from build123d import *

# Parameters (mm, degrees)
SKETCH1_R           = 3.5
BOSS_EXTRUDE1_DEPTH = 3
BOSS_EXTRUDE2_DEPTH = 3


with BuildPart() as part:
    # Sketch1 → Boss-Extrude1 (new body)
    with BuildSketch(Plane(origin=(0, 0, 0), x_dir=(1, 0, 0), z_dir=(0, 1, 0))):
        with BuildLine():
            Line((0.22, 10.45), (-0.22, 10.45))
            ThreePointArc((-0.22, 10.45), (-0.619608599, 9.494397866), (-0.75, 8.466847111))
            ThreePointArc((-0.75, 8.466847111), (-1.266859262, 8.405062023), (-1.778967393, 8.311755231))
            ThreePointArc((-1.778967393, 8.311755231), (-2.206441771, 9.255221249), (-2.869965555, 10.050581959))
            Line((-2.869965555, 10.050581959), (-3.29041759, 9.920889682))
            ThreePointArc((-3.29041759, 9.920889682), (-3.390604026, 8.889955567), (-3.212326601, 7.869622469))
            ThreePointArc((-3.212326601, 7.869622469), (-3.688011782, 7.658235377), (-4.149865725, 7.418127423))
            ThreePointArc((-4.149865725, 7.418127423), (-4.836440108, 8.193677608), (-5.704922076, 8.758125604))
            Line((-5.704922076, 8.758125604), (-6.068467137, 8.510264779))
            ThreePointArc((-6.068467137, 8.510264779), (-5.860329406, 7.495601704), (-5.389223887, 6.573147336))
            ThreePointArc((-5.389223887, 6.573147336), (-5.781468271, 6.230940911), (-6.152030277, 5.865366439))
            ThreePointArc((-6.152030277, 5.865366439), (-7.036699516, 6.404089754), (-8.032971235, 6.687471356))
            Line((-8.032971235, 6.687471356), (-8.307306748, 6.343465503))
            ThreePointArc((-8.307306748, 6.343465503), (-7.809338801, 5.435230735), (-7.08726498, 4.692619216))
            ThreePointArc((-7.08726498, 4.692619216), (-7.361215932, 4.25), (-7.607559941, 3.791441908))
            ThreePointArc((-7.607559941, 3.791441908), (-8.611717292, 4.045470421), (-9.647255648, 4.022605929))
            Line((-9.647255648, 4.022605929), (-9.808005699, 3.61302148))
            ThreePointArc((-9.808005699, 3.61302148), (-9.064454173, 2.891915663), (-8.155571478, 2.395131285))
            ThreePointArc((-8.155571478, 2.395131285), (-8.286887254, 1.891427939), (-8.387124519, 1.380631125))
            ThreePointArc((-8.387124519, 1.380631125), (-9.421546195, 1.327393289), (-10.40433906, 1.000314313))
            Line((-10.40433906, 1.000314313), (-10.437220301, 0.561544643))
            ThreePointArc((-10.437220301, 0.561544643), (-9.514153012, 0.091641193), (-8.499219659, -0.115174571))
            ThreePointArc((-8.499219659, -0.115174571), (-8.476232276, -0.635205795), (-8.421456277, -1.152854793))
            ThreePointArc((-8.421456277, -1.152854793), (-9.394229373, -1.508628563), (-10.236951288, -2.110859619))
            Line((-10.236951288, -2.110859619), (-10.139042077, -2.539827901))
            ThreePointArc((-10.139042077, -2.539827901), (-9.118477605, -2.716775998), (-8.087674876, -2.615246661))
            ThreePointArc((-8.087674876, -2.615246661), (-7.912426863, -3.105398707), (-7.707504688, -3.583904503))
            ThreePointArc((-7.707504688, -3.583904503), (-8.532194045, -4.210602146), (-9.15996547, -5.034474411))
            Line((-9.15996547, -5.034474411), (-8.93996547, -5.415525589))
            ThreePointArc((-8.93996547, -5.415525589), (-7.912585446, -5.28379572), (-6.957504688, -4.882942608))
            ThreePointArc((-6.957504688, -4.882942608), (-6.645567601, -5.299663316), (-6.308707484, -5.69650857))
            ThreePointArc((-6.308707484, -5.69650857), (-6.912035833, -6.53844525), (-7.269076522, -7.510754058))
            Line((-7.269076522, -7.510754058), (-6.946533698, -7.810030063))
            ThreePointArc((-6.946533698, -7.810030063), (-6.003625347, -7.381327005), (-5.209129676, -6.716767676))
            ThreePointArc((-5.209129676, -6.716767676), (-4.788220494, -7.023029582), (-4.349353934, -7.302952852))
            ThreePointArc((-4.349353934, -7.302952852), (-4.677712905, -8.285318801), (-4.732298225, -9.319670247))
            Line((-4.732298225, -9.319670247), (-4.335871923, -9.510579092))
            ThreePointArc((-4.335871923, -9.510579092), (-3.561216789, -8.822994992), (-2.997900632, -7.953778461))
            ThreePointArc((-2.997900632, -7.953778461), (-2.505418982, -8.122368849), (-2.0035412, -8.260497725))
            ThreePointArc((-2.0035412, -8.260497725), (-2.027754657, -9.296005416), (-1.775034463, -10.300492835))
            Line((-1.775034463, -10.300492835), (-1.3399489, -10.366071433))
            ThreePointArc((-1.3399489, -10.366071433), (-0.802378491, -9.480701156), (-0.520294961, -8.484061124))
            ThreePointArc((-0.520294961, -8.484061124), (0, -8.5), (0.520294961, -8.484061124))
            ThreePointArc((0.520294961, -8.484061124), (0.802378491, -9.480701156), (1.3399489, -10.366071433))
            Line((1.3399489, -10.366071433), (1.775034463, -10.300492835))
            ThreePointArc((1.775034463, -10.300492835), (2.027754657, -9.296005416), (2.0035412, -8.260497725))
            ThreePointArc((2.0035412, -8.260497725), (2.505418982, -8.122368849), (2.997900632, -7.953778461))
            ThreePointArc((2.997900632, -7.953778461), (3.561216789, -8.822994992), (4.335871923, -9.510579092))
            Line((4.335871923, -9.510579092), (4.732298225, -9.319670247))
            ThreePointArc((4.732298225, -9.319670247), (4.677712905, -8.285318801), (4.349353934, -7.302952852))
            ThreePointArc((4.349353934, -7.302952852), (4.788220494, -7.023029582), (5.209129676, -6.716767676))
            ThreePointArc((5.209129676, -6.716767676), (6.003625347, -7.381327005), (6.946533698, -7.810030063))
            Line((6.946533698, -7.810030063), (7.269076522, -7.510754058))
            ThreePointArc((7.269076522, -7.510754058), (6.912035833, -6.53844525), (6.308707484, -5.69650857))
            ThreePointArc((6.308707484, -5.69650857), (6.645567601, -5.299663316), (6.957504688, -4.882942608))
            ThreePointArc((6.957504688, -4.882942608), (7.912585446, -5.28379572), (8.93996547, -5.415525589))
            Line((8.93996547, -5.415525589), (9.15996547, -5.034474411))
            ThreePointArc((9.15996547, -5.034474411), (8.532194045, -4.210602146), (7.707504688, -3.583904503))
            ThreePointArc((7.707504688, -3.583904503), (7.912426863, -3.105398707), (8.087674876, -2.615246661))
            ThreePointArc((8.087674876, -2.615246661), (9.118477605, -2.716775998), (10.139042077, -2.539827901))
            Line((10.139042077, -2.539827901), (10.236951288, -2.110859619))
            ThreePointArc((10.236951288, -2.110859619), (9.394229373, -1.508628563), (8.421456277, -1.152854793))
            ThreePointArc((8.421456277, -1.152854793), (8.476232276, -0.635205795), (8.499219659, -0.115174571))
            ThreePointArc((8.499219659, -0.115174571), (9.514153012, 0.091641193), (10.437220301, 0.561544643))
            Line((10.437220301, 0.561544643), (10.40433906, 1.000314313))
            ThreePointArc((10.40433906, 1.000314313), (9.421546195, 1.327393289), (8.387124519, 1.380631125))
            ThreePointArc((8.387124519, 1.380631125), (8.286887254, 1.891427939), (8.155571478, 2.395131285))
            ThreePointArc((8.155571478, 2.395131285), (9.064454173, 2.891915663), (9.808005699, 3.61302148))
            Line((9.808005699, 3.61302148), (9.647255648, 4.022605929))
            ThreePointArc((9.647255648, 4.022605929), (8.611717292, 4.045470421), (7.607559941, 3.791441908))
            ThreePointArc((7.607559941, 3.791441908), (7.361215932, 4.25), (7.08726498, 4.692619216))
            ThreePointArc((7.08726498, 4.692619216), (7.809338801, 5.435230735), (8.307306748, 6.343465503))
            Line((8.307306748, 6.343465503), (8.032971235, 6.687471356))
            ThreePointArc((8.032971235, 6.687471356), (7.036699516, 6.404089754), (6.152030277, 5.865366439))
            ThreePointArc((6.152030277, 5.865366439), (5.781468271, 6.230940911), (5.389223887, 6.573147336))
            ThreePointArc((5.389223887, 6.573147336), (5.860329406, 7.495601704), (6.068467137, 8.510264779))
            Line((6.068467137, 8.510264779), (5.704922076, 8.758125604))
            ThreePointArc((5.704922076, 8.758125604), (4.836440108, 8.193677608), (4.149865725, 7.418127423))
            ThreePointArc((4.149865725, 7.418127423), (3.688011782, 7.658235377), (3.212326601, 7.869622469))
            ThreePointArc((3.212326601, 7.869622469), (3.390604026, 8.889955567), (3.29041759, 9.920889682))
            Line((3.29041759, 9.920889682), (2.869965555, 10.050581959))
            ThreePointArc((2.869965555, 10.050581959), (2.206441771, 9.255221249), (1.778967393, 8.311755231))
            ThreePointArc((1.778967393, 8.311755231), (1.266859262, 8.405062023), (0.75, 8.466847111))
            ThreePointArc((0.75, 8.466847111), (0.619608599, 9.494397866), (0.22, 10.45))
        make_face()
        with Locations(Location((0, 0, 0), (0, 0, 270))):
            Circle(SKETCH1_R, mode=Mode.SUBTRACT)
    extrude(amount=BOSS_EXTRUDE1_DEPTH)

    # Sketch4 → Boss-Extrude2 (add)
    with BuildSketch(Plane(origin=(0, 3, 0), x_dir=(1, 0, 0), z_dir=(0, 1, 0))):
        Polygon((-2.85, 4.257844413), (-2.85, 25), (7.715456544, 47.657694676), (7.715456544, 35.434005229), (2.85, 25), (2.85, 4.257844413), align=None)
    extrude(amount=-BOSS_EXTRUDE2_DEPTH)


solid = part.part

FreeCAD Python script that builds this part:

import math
import FreeCAD as App
import Part
import Sketcher
from FreeCAD import Vector
Q = App.Units.Quantity

doc = App.newDocument("Part")
body = doc.addObject("PartDesign::Body", "Body")

sketch1 = body.newObject("Sketcher::SketchObject", "Sketch")
sketch1.AttachmentSupport = (doc.getObject("XZ_Plane"), [""])
sketch1.MapMode = "FlatFace"
sketch1.addGeometry([
    Part.LineSegment(Vector(0.22, -10.45, 0), Vector(-0.22, -10.45, 0)),
    Part.ArcOfCircle(Part.Circle(Vector(3.099854, -8.500367, 0), Vector(0, 0, 1), 3.85), math.radians(179.50115), math.radians(210.424211)),
    Part.ArcOfCircle(Part.Circle(Vector(0, 0, 0), Vector(0, 0, 1), 8.5), math.radians(-102.080764), math.radians(-95.062093)),
    Part.ArcOfCircle(Part.Circle(Vector(-5.467663, -7.209022, 0), Vector(0, 0, 1), 3.85), math.radians(-47.567068), math.radians(-16.644007)),
    Part.LineSegment(Vector(-2.869966, -10.050582, 0), Vector(-3.290418, -9.92089, 0)),
    Part.ArcOfCircle(Part.Circle(Vector(0.456609, -9.036418, 0), Vector(0, 0, 1), 3.85), math.radians(162.358293), math.radians(193.281354)),
    Part.ArcOfCircle(Part.Circle(Vector(0, 0, 0), Vector(0, 0, 1), 8.5), math.radians(-119.223621), math.radians(-112.20495)),
    Part.ArcOfCircle(Part.Circle(Vector(-7.349647, -5.277123, 0), Vector(0, 0, 1), 3.85), math.radians(-64.709925), math.radians(-33.786865)),
    Part.LineSegment(Vector(-5.704922, -8.758126, 0), Vector(-6.068467, -8.510265, 0)),
    Part.ArcOfCircle(Part.Circle(Vector(-2.227208, -8.769543, 0), Vector(0, 0, 1), 3.85), math.radians(145.215436), math.radians(176.138497)),
    Part.ArcOfCircle(Part.Circle(Vector(0, 0, 0), Vector(0, 0, 1), 8.5), math.radians(-136.366479), math.radians(-129.347807)),
    Part.ArcOfCircle(Part.Circle(Vector(-8.578582, -2.876329, 0), Vector(0, 0, 1), 3.85), math.radians(-81.852783), math.radians(-50.929722)),
    Part.LineSegment(Vector(-8.032971, -6.687471, 0), Vector(-8.307307, -6.343466, 0)),
    Part.ArcOfCircle(Part.Circle(Vector(-4.713127, -7.723456, 0), Vector(0, 0, 1), 3.85), math.radians(128.072579), math.radians(158.99564)),
    Part.ArcOfCircle(Part.Circle(Vector(0, 0, 0), Vector(0, 0, 1), 8.5), math.radians(-153.509336), math.radians(-146.490664)),
    Part.ArcOfCircle(Part.Circle(Vector(-9.045272, -0.21996, 0), Vector(0, 0, 1), 3.85), math.radians(-98.99564), math.radians(-68.072579)),
    Part.LineSegment(Vector(-9.647256, -4.022606, 0), Vector(-9.808006, -3.613021, 0)),
    Part.ArcOfCircle(Part.Circle(Vector(-6.780265, -5.991106, 0), Vector(0, 0, 1), 3.85), math.radians(110.929722), math.radians(141.852783)),
    Part.ArcOfCircle(Part.Circle(Vector(0, 0, 0), Vector(0, 0, 1), 8.5), math.radians(-170.652193), math.radians(-163.633521)),
    Part.ArcOfCircle(Part.Circle(Vector(-8.708251, 2.455953, 0), Vector(0, 0, 1), 3.85), math.radians(-116.138497), math.radians(-85.215436)),
    Part.LineSegment(Vector(-10.404339, -1.000314, 0), Vector(-10.43722, -0.561545, 0)),
    Part.ArcOfCircle(Part.Circle(Vector(-8.244946, -3.726419, 0), Vector(0, 0, 1), 3.85), math.radians(93.786865), math.radians(124.709925)),
    Part.ArcOfCircle(Part.Circle(Vector(0, 0, 0), Vector(0, 0, 1), 8.5), math.radians(172.20495), math.radians(179.223621)),
    Part.ArcOfCircle(Part.Circle(Vector(-7.597463, 4.913644, 0), Vector(0, 0, 1), 3.85), math.radians(-133.281354), math.radians(-102.358293)),
    Part.LineSegment(Vector(-10.236951, 2.11086, 0), Vector(-10.139042, 2.539828, 0)),
    Part.ArcOfCircle(Part.Circle(Vector(-8.977027, -1.130625, 0), Vector(0, 0, 1), 3.85), math.radians(76.644007), math.radians(107.567068)),
    Part.ArcOfCircle(Part.Circle(Vector(0, 0, 0), Vector(0, 0, 1), 8.5), math.radians(155.062093), math.radians(162.080764)),
    Part.ArcOfCircle(Part.Circle(Vector(-5.811607, 6.934736, 0), Vector(0, 0, 1), 3.85), math.radians(-150.424211), math.radians(-119.50115)),
    Part.LineSegment(Vector(-9.159965, 5.034474, 0), Vector(-8.939965, 5.415526, 0)),
    Part.ArcOfCircle(Part.Circle(Vector(-8.911461, 1.565631, 0), Vector(0, 0, 1), 3.85), math.radians(59.50115), math.radians(90.424211)),
    Part.ArcOfCircle(Part.Circle(Vector(0, 0, 0), Vector(0, 0, 1), 8.5), math.radians(137.919236), math.radians(144.937907)),
    Part.ArcOfCircle(Part.Circle(Vector(-3.509364, 8.339646, 0), Vector(0, 0, 1), 3.85), math.radians(-167.567068), math.radians(-136.644007)),
    Part.LineSegment(Vector(-7.269077, 7.510754, 0), Vector(-6.946534, 7.81003, 0)),
    Part.ArcOfCircle(Part.Circle(Vector(-8.054072, 4.122774, 0), Vector(0, 0, 1), 3.85), math.radians(42.358293), math.radians(73.281354)),
    Part.ArcOfCircle(Part.Circle(Vector(0, 0, 0), Vector(0, 0, 1), 8.5), math.radians(120.776379), math.radians(127.79505)),
    Part.ArcOfCircle(Part.Circle(Vector(-0.895299, 9.003542, 0), Vector(0, 0, 1), 3.85), math.radians(175.290075), math.radians(206.213135)),
    Part.LineSegment(Vector(-4.732298, 9.31967, 0), Vector(-4.335872, 9.510579, 0)),
    Part.ArcOfCircle(Part.Circle(Vector(-6.481043, 6.31359, 0), Vector(0, 0, 1), 3.85), math.radians(25.215436), math.radians(56.138497)),
    Part.ArcOfCircle(Part.Circle(Vector(0, 0, 0), Vector(0, 0, 1), 8.5), math.radians(103.633522), math.radians(110.652193)),
    Part.ArcOfCircle(Part.Circle(Vector(1.798317, 8.867434, 0), Vector(0, 0, 1), 3.85), math.radians(158.147217), math.radians(189.070278)),
    Part.LineSegment(Vector(-1.775034, 10.300493, 0), Vector(-1.339949, 10.366071, 0)),
    Part.ArcOfCircle(Part.Circle(Vector(-4.332145, 7.943416, 0), Vector(0, 0, 1), 3.85), math.radians(8.072579), math.radians(38.99564)),
    Part.ArcOfCircle(Part.Circle(Vector(0, 0, 0), Vector(0, 0, 1), 8.5), math.radians(86.490664), math.radians(93.509336)),
    Part.ArcOfCircle(Part.Circle(Vector(4.332145, 7.943416, 0), Vector(0, 0, 1), 3.85), math.radians(141.00436), math.radians(171.927421)),
    Part.LineSegment(Vector(1.339949, 10.366071, 0), Vector(1.775034, 10.300493, 0)),
    Part.ArcOfCircle(Part.Circle(Vector(-1.798317, 8.867434, 0), Vector(0, 0, 1), 3.85), math.radians(-9.070278), math.radians(21.852783)),
    Part.ArcOfCircle(Part.Circle(Vector(0, 0, 0), Vector(0, 0, 1), 8.5), math.radians(69.347807), math.radians(76.366478)),
    Part.ArcOfCircle(Part.Circle(Vector(6.481043, 6.31359, 0), Vector(0, 0, 1), 3.85), math.radians(123.861503), math.radians(154.784564)),
    Part.LineSegment(Vector(4.335872, 9.510579, 0), Vector(4.732298, 9.31967, 0)),
    Part.ArcOfCircle(Part.Circle(Vector(0.895299, 9.003542, 0), Vector(0, 0, 1), 3.85), math.radians(-26.213135), math.radians(4.709925)),
    Part.ArcOfCircle(Part.Circle(Vector(0, 0, 0), Vector(0, 0, 1), 8.5), math.radians(52.20495), math.radians(59.223621)),
    Part.ArcOfCircle(Part.Circle(Vector(8.054072, 4.122774, 0), Vector(0, 0, 1), 3.85), math.radians(106.718646), math.radians(137.641707)),
    Part.LineSegment(Vector(6.946534, 7.81003, 0), Vector(7.269077, 7.510754, 0)),
    Part.ArcOfCircle(Part.Circle(Vector(3.509364, 8.339646, 0), Vector(0, 0, 1), 3.85), math.radians(-43.355993), math.radians(-12.432932)),
    Part.ArcOfCircle(Part.Circle(Vector(0, 0, 0), Vector(0, 0, 1), 8.5), math.radians(35.062093), math.radians(42.080764)),
    Part.ArcOfCircle(Part.Circle(Vector(8.911461, 1.565631, 0), Vector(0, 0, 1), 3.85), math.radians(89.575789), math.radians(120.49885)),
    Part.LineSegment(Vector(8.939965, 5.415526, 0), Vector(9.159965, 5.034474, 0)),
    Part.ArcOfCircle(Part.Circle(Vector(5.811607, 6.934736, 0), Vector(0, 0, 1), 3.85), math.radians(-60.49885), math.radians(-29.575789)),
    Part.ArcOfCircle(Part.Circle(Vector(0, 0, 0), Vector(0, 0, 1), 8.5), math.radians(17.919236), math.radians(24.937907)),
    Part.ArcOfCircle(Part.Circle(Vector(8.977027, -1.130625, 0), Vector(0, 0, 1), 3.85), math.radians(72.432932), math.radians(103.355993)),
    Part.LineSegment(Vector(10.139042, 2.539828, 0), Vector(10.236951, 2.11086, 0)),
    Part.ArcOfCircle(Part.Circle(Vector(7.597463, 4.913644, 0), Vector(0, 0, 1), 3.85), math.radians(-77.641707), math.radians(-46.718646)),
    Part.ArcOfCircle(Part.Circle(Vector(0, 0, 0), Vector(0, 0, 1), 8.5), math.radians(0.776379), math.radians(7.79505)),
    Part.ArcOfCircle(Part.Circle(Vector(8.244946, -3.726419, 0), Vector(0, 0, 1), 3.85), math.radians(55.290075), math.radians(86.213135)),
    Part.LineSegment(Vector(10.43722, -0.561545, 0), Vector(10.404339, -1.000314, 0)),
    Part.ArcOfCircle(Part.Circle(Vector(8.708251, 2.455953, 0), Vector(0, 0, 1), 3.85), math.radians(-94.784564), math.radians(-63.861503)),
    Part.ArcOfCircle(Part.Circle(Vector(0, 0, 0), Vector(0, 0, 1), 8.5), math.radians(-16.366479), math.radians(-9.347807)),
    Part.ArcOfCircle(Part.Circle(Vector(6.780265, -5.991106, 0), Vector(0, 0, 1), 3.85), math.radians(38.147217), math.radians(69.070278)),
    Part.LineSegment(Vector(9.808006, -3.613021, 0), Vector(9.647256, -4.022606, 0)),
    Part.ArcOfCircle(Part.Circle(Vector(9.045272, -0.21996, 0), Vector(0, 0, 1), 3.85), math.radians(-111.927421), math.radians(-81.00436)),
    Part.ArcOfCircle(Part.Circle(Vector(0, 0, 0), Vector(0, 0, 1), 8.5), math.radians(-33.509336), math.radians(-26.490664)),
    Part.ArcOfCircle(Part.Circle(Vector(4.713127, -7.723456, 0), Vector(0, 0, 1), 3.85), math.radians(21.00436), math.radians(51.927421)),
    Part.LineSegment(Vector(8.307307, -6.343466, 0), Vector(8.032971, -6.687471, 0)),
    Part.ArcOfCircle(Part.Circle(Vector(8.578582, -2.876329, 0), Vector(0, 0, 1), 3.85), math.radians(-129.070278), math.radians(-98.147217)),
    Part.ArcOfCircle(Part.Circle(Vector(0, 0, 0), Vector(0, 0, 1), 8.5), math.radians(-50.652193), math.radians(-43.633521)),
    Part.ArcOfCircle(Part.Circle(Vector(2.227208, -8.769543, 0), Vector(0, 0, 1), 3.85), math.radians(3.861503), math.radians(34.784564)),
    Part.LineSegment(Vector(6.068467, -8.510265, 0), Vector(5.704922, -8.758126, 0)),
    Part.ArcOfCircle(Part.Circle(Vector(7.349647, -5.277123, 0), Vector(0, 0, 1), 3.85), math.radians(-146.213135), math.radians(-115.290075)),
    Part.ArcOfCircle(Part.Circle(Vector(0, 0, 0), Vector(0, 0, 1), 8.5), math.radians(-67.79505), math.radians(-60.776379)),
    Part.ArcOfCircle(Part.Circle(Vector(-0.456609, -9.036418, 0), Vector(0, 0, 1), 3.85), math.radians(-13.281354), math.radians(17.641707)),
    Part.LineSegment(Vector(3.290418, -9.92089, 0), Vector(2.869966, -10.050582, 0)),
    Part.ArcOfCircle(Part.Circle(Vector(5.467663, -7.209022, 0), Vector(0, 0, 1), 3.85), math.radians(-163.355993), math.radians(-132.432932)),
    Part.ArcOfCircle(Part.Circle(Vector(0, 0, 0), Vector(0, 0, 1), 8.5), math.radians(-84.937907), math.radians(-77.919236)),
    Part.ArcOfCircle(Part.Circle(Vector(-3.099854, -8.500367, 0), Vector(0, 0, 1), 3.85), math.radians(-30.424211), math.radians(0.49885)),
    Part.Circle(Vector(0, 0, 0), Vector(0, 0, 1), 3.5),
], False)
sketch1.addConstraint([
    Sketcher.Constraint("Coincident", 0, 2, 1, 2),
    Sketcher.Constraint("Coincident", 1, 1, 2, 2),
    Sketcher.Constraint("Coincident", 2, 1, 3, 2),
    Sketcher.Constraint("Coincident", 3, 1, 4, 1),
    Sketcher.Constraint("Coincident", 4, 2, 5, 2),
    Sketcher.Constraint("Coincident", 5, 1, 6, 2),
    Sketcher.Constraint("Coincident", 6, 1, 7, 2),
    Sketcher.Constraint("Coincident", 7, 1, 8, 1),
    Sketcher.Constraint("Coincident", 8, 2, 9, 2),
    Sketcher.Constraint("Coincident", 9, 1, 10, 2),
    Sketcher.Constraint("Coincident", 10, 1, 11, 2),
    Sketcher.Constraint("Coincident", 11, 1, 12, 1),
    Sketcher.Constraint("Coincident", 12, 2, 13, 2),
    Sketcher.Constraint("Coincident", 13, 1, 14, 2),
    Sketcher.Constraint("Coincident", 14, 1, 15, 2),
    Sketcher.Constraint("Coincident", 15, 1, 16, 1),
    Sketcher.Constraint("Coincident", 16, 2, 17, 2),
    Sketcher.Constraint("Coincident", 17, 1, 18, 2),
    Sketcher.Constraint("Coincident", 18, 1, 19, 2),
    Sketcher.Constraint("Coincident", 19, 1, 20, 1),
    Sketcher.Constraint("Coincident", 20, 2, 21, 2),
    Sketcher.Constraint("Coincident", 21, 1, 22, 2),
    Sketcher.Constraint("Coincident", 22, 1, 23, 2),
    Sketcher.Constraint("Coincident", 23, 1, 24, 1),
    Sketcher.Constraint("Coincident", 24, 2, 25, 2),
    Sketcher.Constraint("Coincident", 25, 1, 26, 2),
    Sketcher.Constraint("Coincident", 26, 1, 27, 2),
    Sketcher.Constraint("Coincident", 27, 1, 28, 1),
    Sketcher.Constraint("Coincident", 28, 2, 29, 2),
    Sketcher.Constraint("Coincident", 29, 1, 30, 2),
    Sketcher.Constraint("Coincident", 30, 1, 31, 2),
    Sketcher.Constraint("Coincident", 31, 1, 32, 1),
    Sketcher.Constraint("Coincident", 32, 2, 33, 2),
    Sketcher.Constraint("Coincident", 33, 1, 34, 2),
    Sketcher.Constraint("Coincident", 34, 1, 35, 2),
    Sketcher.Constraint("Coincident", 35, 1, 36, 1),
    Sketcher.Constraint("Coincident", 36, 2, 37, 2),
    Sketcher.Constraint("Coincident", 37, 1, 38, 2),
    Sketcher.Constraint("Coincident", 38, 1, 39, 2),
    Sketcher.Constraint("Coincident", 39, 1, 40, 1),
    Sketcher.Constraint("Coincident", 40, 2, 41, 2),
    Sketcher.Constraint("Coincident", 41, 1, 42, 2),
    Sketcher.Constraint("Coincident", 42, 1, 43, 2),
    Sketcher.Constraint("Coincident", 43, 1, 44, 1),
    Sketcher.Constraint("Coincident", 44, 2, 45, 2),
    Sketcher.Constraint("Coincident", 45, 1, 46, 2),
    Sketcher.Constraint("Coincident", 46, 1, 47, 2),
    Sketcher.Constraint("Coincident", 47, 1, 48, 1),
    Sketcher.Constraint("Coincident", 48, 2, 49, 2),
    Sketcher.Constraint("Coincident", 49, 1, 50, 2),
    Sketcher.Constraint("Coincident", 50, 1, 51, 2),
    Sketcher.Constraint("Coincident", 51, 1, 52, 1),
    Sketcher.Constraint("Coincident", 52, 2, 53, 2),
    Sketcher.Constraint("Coincident", 53, 1, 54, 2),
    Sketcher.Constraint("Coincident", 54, 1, 55, 2),
    Sketcher.Constraint("Coincident", 55, 1, 56, 1),
    Sketcher.Constraint("Coincident", 56, 2, 57, 2),
    Sketcher.Constraint("Coincident", 57, 1, 58, 2),
    Sketcher.Constraint("Coincident", 58, 1, 59, 2),
    Sketcher.Constraint("Coincident", 59, 1, 60, 1),
    Sketcher.Constraint("Coincident", 60, 2, 61, 2),
    Sketcher.Constraint("Coincident", 61, 1, 62, 2),
    Sketcher.Constraint("Coincident", 62, 1, 63, 2),
    Sketcher.Constraint("Coincident", 63, 1, 64, 1),
    Sketcher.Constraint("Coincident", 64, 2, 65, 2),
    Sketcher.Constraint("Coincident", 65, 1, 66, 2),
    Sketcher.Constraint("Coincident", 66, 1, 67, 2),
    Sketcher.Constraint("Coincident", 67, 1, 68, 1),
    Sketcher.Constraint("Coincident", 68, 2, 69, 2),
    Sketcher.Constraint("Coincident", 69, 1, 70, 2),
    Sketcher.Constraint("Coincident", 70, 1, 71, 2),
    Sketcher.Constraint("Coincident", 71, 1, 72, 1),
    Sketcher.Constraint("Coincident", 72, 2, 73, 2),
    Sketcher.Constraint("Coincident", 73, 1, 74, 2),
    Sketcher.Constraint("Coincident", 74, 1, 75, 2),
    Sketcher.Constraint("Coincident", 75, 1, 76, 1),
    Sketcher.Constraint("Coincident", 76, 2, 77, 2),
    Sketcher.Constraint("Coincident", 77, 1, 78, 2),
    Sketcher.Constraint("Coincident", 78, 1, 79, 2),
    Sketcher.Constraint("Coincident", 79, 1, 80, 1),
    Sketcher.Constraint("Coincident", 80, 2, 81, 2),
    Sketcher.Constraint("Coincident", 81, 1, 82, 2),
    Sketcher.Constraint("Coincident", 82, 1, 83, 2),
    Sketcher.Constraint("Coincident", 83, 1, 0, 1),
    Sketcher.Constraint("Horizontal", 0),
    Sketcher.Constraint("Coincident", 2, 3, -1, 1),
    Sketcher.Constraint("Coincident", 6, 3, -1, 1),
    Sketcher.Constraint("Coincident", 10, 3, -1, 1),
    Sketcher.Constraint("Coincident", 14, 3, -1, 1),
    Sketcher.Constraint("Coincident", 18, 3, -1, 1),
    Sketcher.Constraint("Coincident", 22, 3, -1, 1),
    Sketcher.Constraint("Coincident", 26, 3, -1, 1),
    Sketcher.Constraint("Coincident", 30, 3, -1, 1),
    Sketcher.Constraint("Coincident", 34, 3, -1, 1),
    Sketcher.Constraint("Coincident", 38, 3, -1, 1),
    Sketcher.Constraint("Coincident", 42, 3, -1, 1),
    Sketcher.Constraint("Coincident", 46, 3, -1, 1),
    Sketcher.Constraint("Coincident", 50, 3, -1, 1),
    Sketcher.Constraint("Coincident", 54, 3, -1, 1),
    Sketcher.Constraint("Coincident", 58, 3, -1, 1),
    Sketcher.Constraint("Coincident", 62, 3, -1, 1),
    Sketcher.Constraint("Coincident", 66, 3, -1, 1),
    Sketcher.Constraint("Coincident", 70, 3, -1, 1),
    Sketcher.Constraint("Coincident", 74, 3, -1, 1),
    Sketcher.Constraint("Coincident", 78, 3, -1, 1),
    Sketcher.Constraint("Coincident", 82, 3, -1, 1),
    Sketcher.Constraint("Coincident", 84, 3, -1, 1),
    Sketcher.Constraint("Equal", 1, 3),
    Sketcher.Constraint("Equal", 3, 5),
    Sketcher.Constraint("Equal", 2, 6),
    Sketcher.Constraint("Equal", 5, 7),
    Sketcher.Constraint("Equal", 7, 9),
    Sketcher.Constraint("Equal", 6, 10),
    Sketcher.Constraint("Equal", 9, 11),
    Sketcher.Constraint("Equal", 11, 13),
    Sketcher.Constraint("Equal", 10, 14),
    Sketcher.Constraint("Equal", 13, 15),
    Sketcher.Constraint("Equal", 15, 17),
    Sketcher.Constraint("Equal", 14, 18),
    Sketcher.Constraint("Equal", 17, 19),
    Sketcher.Constraint("Equal", 19, 21),
    Sketcher.Constraint("Equal", 18, 22),
    Sketcher.Constraint("Equal", 21, 23),
    Sketcher.Constraint("Equal", 23, 25),
    Sketcher.Constraint("Equal", 22, 26),
    Sketcher.Constraint("Equal", 25, 27),
    Sketcher.Constraint("Equal", 27, 29),
    Sketcher.Constraint("Equal", 26, 30),
    Sketcher.Constraint("Equal", 29, 31),
    Sketcher.Constraint("Equal", 31, 33),
    Sketcher.Constraint("Equal", 30, 34),
    Sketcher.Constraint("Equal", 33, 35),
    Sketcher.Constraint("Equal", 35, 37),
    Sketcher.Constraint("Equal", 34, 38),
    Sketcher.Constraint("Equal", 37, 39),
    Sketcher.Constraint("Equal", 39, 41),
    Sketcher.Constraint("Equal", 38, 42),
    Sketcher.Constraint("Equal", 41, 43),
    Sketcher.Constraint("Equal", 43, 45),
    Sketcher.Constraint("Equal", 42, 46),
    Sketcher.Constraint("Equal", 45, 47),
    Sketcher.Constraint("Equal", 47, 49),
    Sketcher.Constraint("Equal", 46, 50),
    Sketcher.Constraint("Equal", 49, 51),
    Sketcher.Constraint("Equal", 51, 53),
    Sketcher.Constraint("Equal", 50, 54),
    Sketcher.Constraint("Equal", 53, 55),
    Sketcher.Constraint("Equal", 55, 57),
    Sketcher.Constraint("Equal", 54, 58),
    Sketcher.Constraint("Equal", 57, 59),
    Sketcher.Constraint("Equal", 59, 61),
    Sketcher.Constraint("Equal", 58, 62),
    Sketcher.Constraint("Equal", 61, 63),
    Sketcher.Constraint("Equal", 63, 65),
    Sketcher.Constraint("Equal", 62, 66),
    Sketcher.Constraint("Equal", 65, 67),
    Sketcher.Constraint("Equal", 67, 69),
    Sketcher.Constraint("Equal", 66, 70),
    Sketcher.Constraint("Equal", 69, 71),
    Sketcher.Constraint("Equal", 71, 73),
    Sketcher.Constraint("Equal", 70, 74),
    Sketcher.Constraint("Equal", 73, 75),
    Sketcher.Constraint("Equal", 75, 77),
    Sketcher.Constraint("Equal", 74, 78),
    Sketcher.Constraint("Equal", 77, 79),
    Sketcher.Constraint("Equal", 79, 81),
    Sketcher.Constraint("Equal", 78, 82),
    Sketcher.Constraint("Equal", 81, 83),
    Sketcher.Constraint("Symmetric", 41, 3, 43, 3, -2),
    Sketcher.Constraint("Symmetric", 39, 3, 45, 3, -2),
    Sketcher.Constraint("Symmetric", 37, 3, 47, 3, -2),
    Sketcher.Constraint("Symmetric", 35, 3, 49, 3, -2),
    Sketcher.Constraint("Symmetric", 33, 3, 51, 3, -2),
    Sketcher.Constraint("Symmetric", 31, 3, 53, 3, -2),
    Sketcher.Constraint("Symmetric", 29, 3, 55, 3, -2),
    Sketcher.Constraint("Symmetric", 27, 3, 57, 3, -2),
    Sketcher.Constraint("Symmetric", 25, 3, 59, 3, -2),
    Sketcher.Constraint("Symmetric", 23, 3, 61, 3, -2),
    Sketcher.Constraint("Symmetric", 21, 3, 63, 3, -2),
    Sketcher.Constraint("Symmetric", 19, 3, 65, 3, -2),
    Sketcher.Constraint("Symmetric", 17, 3, 67, 3, -2),
    Sketcher.Constraint("Symmetric", 15, 3, 69, 3, -2),
    Sketcher.Constraint("Symmetric", 13, 3, 71, 3, -2),
    Sketcher.Constraint("Symmetric", 11, 3, 73, 3, -2),
    Sketcher.Constraint("Symmetric", 9, 3, 75, 3, -2),
    Sketcher.Constraint("Symmetric", 7, 3, 77, 3, -2),
    Sketcher.Constraint("Symmetric", 5, 3, 79, 3, -2),
    Sketcher.Constraint("Symmetric", 3, 3, 81, 3, -2),
    Sketcher.Constraint("Symmetric", 1, 3, 83, 3, -2),
    Sketcher.Constraint("Horizontal", 40, 2, 43, 1),
    Sketcher.Constraint("Horizontal", 39, 1, 44, 2),
    Sketcher.Constraint("Horizontal", 36, 2, 47, 1),
    Sketcher.Constraint("Horizontal", 35, 1, 48, 2),
    Sketcher.Constraint("Horizontal", 32, 2, 51, 1),
    Sketcher.Constraint("Horizontal", 31, 1, 52, 2),
    Sketcher.Constraint("Horizontal", 28, 2, 55, 1),
    Sketcher.Constraint("Horizontal", 27, 1, 56, 2),
    Sketcher.Constraint("Horizontal", 24, 2, 59, 1),
    Sketcher.Constraint("Horizontal", 23, 1, 60, 2),
    Sketcher.Constraint("Horizontal", 20, 2, 63, 1),
    Sketcher.Constraint("Horizontal", 19, 1, 64, 2),
    Sketcher.Constraint("Horizontal", 16, 2, 67, 1),
    Sketcher.Constraint("Horizontal", 15, 1, 68, 2),
    Sketcher.Constraint("Horizontal", 12, 2, 71, 1),
    Sketcher.Constraint("Horizontal", 11, 1, 72, 2),
    Sketcher.Constraint("Horizontal", 8, 2, 75, 1),
    Sketcher.Constraint("Horizontal", 7, 1, 76, 2),
    Sketcher.Constraint("Horizontal", 4, 2, 79, 1),
    Sketcher.Constraint("Horizontal", 3, 1, 80, 2),
    Sketcher.Constraint("Equal", 4, 8),
    Sketcher.Constraint("Equal", 8, 12),
    Sketcher.Constraint("Equal", 12, 16),
    Sketcher.Constraint("Equal", 16, 20),
    Sketcher.Constraint("Equal", 20, 24),
    Sketcher.Constraint("Equal", 24, 28),
    Sketcher.Constraint("Equal", 28, 32),
    Sketcher.Constraint("Equal", 32, 36),
    Sketcher.Constraint("Equal", 36, 40),
    Sketcher.Constraint("Diameter", 84, 7.0),
    Sketcher.Constraint("Radius", 2, 8.5),
    Sketcher.Constraint("Angle", 28, Q("60 deg")),
    Sketcher.Constraint("Radius", 1, 3.85),
    Sketcher.Constraint("DistanceX", 0, 2, 0, 1, 0.44),
    Sketcher.Constraint("Distance", 4, 0.44),
    Sketcher.Constraint("DistanceY", 0, 2, -1, 1, 10.45),
    Sketcher.Constraint("DistanceX", 1, 1, -1, 1, 0.75),
    Sketcher.Constraint("DistanceX", 35, 3, -1, 1, 0.895299),
    Sketcher.Constraint("DistanceX", 35, 1, -1, 1, 4.732298),
    Sketcher.Constraint("DistanceX", 37, 1, -1, 1, 2.997901),
    Sketcher.Constraint("DistanceY", 3, 3, -1, 1, 7.209022),
    Sketcher.Constraint("DistanceX", -1, 1, 5, 3, 0.456609),
    Sketcher.Constraint("DistanceX", 11, 3, -1, 1, 8.578582),
    Sketcher.Constraint("DistanceY", 11, 3, -1, 1, 2.876329),
    Sketcher.Constraint("DistanceY", 15, 3, -1, 1, 0.21996),
    Sketcher.Constraint("DistanceX", 19, 3, -1, 1, 8.708251),
    Sketcher.Constraint("DistanceY", 21, 3, -1, 1, 3.726419),
    Sketcher.Constraint("DistanceX", 29, 3, -1, 1, 8.911461),
    Sketcher.Constraint("DistanceY", -1, 1, 29, 3, 1.565631),
    Sketcher.Constraint("DistanceX", 33, 3, -1, 1, 8.054072),
    Sketcher.Constraint("DistanceY", -1, 1, 37, 3, 6.31359),
    Sketcher.Constraint("DistanceY", 3, 1, -1, 1, 10.050582),
    Sketcher.Constraint("DistanceY", 4, 2, -1, 1, 9.92089),
    Sketcher.Constraint("DistanceX", 11, 1, -1, 1, 8.032971),
    Sketcher.Constraint("DistanceY", 13, 1, -1, 1, 4.692619),
    Sketcher.Constraint("DistanceX", 14, 1, -1, 1, 7.60756),
    Sketcher.Constraint("DistanceY", 16, 2, -1, 1, 3.613021),
    Sketcher.Constraint("DistanceX", 17, 1, -1, 1, 8.155571),
    Sketcher.Constraint("DistanceY", 18, 1, -1, 1, 1.380631),
    Sketcher.Constraint("DistanceX", 19, 1, -1, 1, 10.404339),
    Sketcher.Constraint("DistanceX", 20, 2, -1, 1, 10.43722),
    Sketcher.Constraint("DistanceX", 23, 1, -1, 1, 10.236951),
    Sketcher.Constraint("DistanceY", -1, 1, 23, 1, 2.11086),
    Sketcher.Constraint("DistanceY", -1, 1, 30, 1, 5.696509),
    Sketcher.Constraint("DistanceY", -1, 1, 32, 2, 7.81003),
    Sketcher.Constraint("DistanceX", 33, 1, -1, 1, 5.20913),
    Sketcher.Constraint("DistanceY", -1, 1, 35, 1, 9.31967),
    Sketcher.Constraint("DistanceX", 38, 1, -1, 1, 2.003541),
    Sketcher.Constraint("DistanceX", 40, 2, -1, 1, 1.339949),
    Sketcher.Constraint("DistanceY", -1, 1, 40, 2, 10.366071),
    Sketcher.Constraint("DistanceY", -1, 1, 41, 1, 8.484061),
    Sketcher.Constraint("DistanceX", 3, 3, -1, 1, 5.467663),
    Sketcher.Constraint("DistanceX", 7, 3, -1, 1, 7.349647),
    Sketcher.Constraint("DistanceY", 7, 3, -1, 1, 5.277123),
    Sketcher.Constraint("DistanceX", 9, 3, -1, 1, 2.227208),
    Sketcher.Constraint("DistanceY", 9, 3, -1, 1, 8.769543),
    Sketcher.Constraint("DistanceX", 13, 3, -1, 1, 4.713127),
    Sketcher.Constraint("DistanceX", 17, 3, -1, 1, 6.780265),
    Sketcher.Constraint("DistanceX", 23, 3, -1, 1, 7.597463),
    Sketcher.Constraint("DistanceX", 25, 3, -1, 1, 8.977027),
    Sketcher.Constraint("DistanceY", 25, 3, -1, 1, 1.130625),
    Sketcher.Constraint("DistanceX", 27, 3, -1, 1, 5.811607),
    Sketcher.Constraint("DistanceY", -1, 1, 27, 3, 6.934736),
    Sketcher.Constraint("DistanceX", 31, 3, -1, 1, 3.509364),
    Sketcher.Constraint("DistanceX", -1, 1, 39, 3, 1.798317),
    Sketcher.Constraint("DistanceX", 7, 1, -1, 1, 5.704922),
])
pad1 = body.newObject("PartDesign::Pad", "Pad")
pad1.Profile = sketch1
pad1.Length = 3
pad1.Reversed = True

sketch2 = body.newObject("Sketcher::SketchObject", "Sketch001")
sketch2.AttachmentSupport = (doc.getObject("XZ_Plane"), [""])
sketch2.MapMode = "FlatFace"
sketch2.AttachmentOffset = App.Placement(Vector(0, 0, -3), App.Rotation())
sketch2.addGeometry([
    Part.LineSegment(Vector(-2.85, -25, 0), Vector(-2.85, -4.257844, 0)),
    Part.LineSegment(Vector(-2.85, -4.257844, 0), Vector(2.85, -4.257844, 0)),
    Part.LineSegment(Vector(2.85, -4.257844, 0), Vector(2.85, -25, 0)),
    Part.LineSegment(Vector(2.85, -25, 0), Vector(7.715457, -35.434005, 0)),
    Part.LineSegment(Vector(7.715457, -35.434005, 0), Vector(7.715457, -47.657695, 0)),
    Part.LineSegment(Vector(7.715457, -47.657695, 0), Vector(-2.85, -25, 0)),
], False)
sketch2.addConstraint([
    Sketcher.Constraint("Coincident", 0, 2, 1, 1),
    Sketcher.Constraint("Coincident", 1, 2, 2, 1),
    Sketcher.Constraint("Coincident", 2, 2, 3, 1),
    Sketcher.Constraint("Coincident", 3, 2, 4, 1),
    Sketcher.Constraint("Coincident", 4, 2, 5, 1),
    Sketcher.Constraint("Coincident", 5, 2, 0, 1),
    Sketcher.Constraint("Vertical", 0),
    Sketcher.Constraint("Horizontal", 1),
    Sketcher.Constraint("Vertical", 2),
    Sketcher.Constraint("Vertical", 4),
    Sketcher.Constraint("Symmetric", 2, 2, 5, 2, -2),
    Sketcher.Constraint("Parallel", 3, 5),
    Sketcher.Constraint("Angle", 3, Q("-65 deg")),
    Sketcher.Constraint("Distance", 5, 25.0),
    Sketcher.Constraint("DistanceX", 1, 1, 1, 2, 5.7),
    Sketcher.Constraint("DistanceY", 2, 2, -1, 1, 25.0),
    Sketcher.Constraint("DistanceY", 0, 1, 0, 2, 20.742156),
])
pad2 = body.newObject("PartDesign::Pad", "Pad001")
pad2.Profile = sketch2
pad2.Length = 3

doc.recompute()
